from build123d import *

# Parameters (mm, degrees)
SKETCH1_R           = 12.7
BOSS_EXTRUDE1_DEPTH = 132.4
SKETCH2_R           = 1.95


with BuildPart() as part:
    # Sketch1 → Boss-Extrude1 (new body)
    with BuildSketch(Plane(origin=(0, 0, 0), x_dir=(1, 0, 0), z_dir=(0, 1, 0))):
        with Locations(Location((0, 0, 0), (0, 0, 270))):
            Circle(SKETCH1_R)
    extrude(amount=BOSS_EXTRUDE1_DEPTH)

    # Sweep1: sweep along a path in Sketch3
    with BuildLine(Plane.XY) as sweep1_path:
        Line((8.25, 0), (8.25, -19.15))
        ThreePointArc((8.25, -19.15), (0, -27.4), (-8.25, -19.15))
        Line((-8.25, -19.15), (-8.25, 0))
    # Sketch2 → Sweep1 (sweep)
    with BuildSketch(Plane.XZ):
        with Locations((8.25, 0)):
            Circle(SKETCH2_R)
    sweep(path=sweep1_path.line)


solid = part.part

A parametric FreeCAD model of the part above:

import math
import FreeCAD as App
import Part
import Sketcher

V = App.Vector
Q = App.Units.Quantity

doc = App.newDocument("Part")
body = doc.addObject("PartDesign::Body", "Body")

# Sketch on XZ plane
sketch1 = body.newObject("Sketcher::SketchObject", "Sketch")
sketch1.AttachmentSupport = (doc.getObject("XZ_Plane"), [""])
sketch1.MapMode = "FlatFace"
sketch1.addGeometry(Part.Circle(V(0, 0, 0), V(0, 0, 1), 12.7), False)
sketch1.addConstraint(Sketcher.Constraint("Coincident", 0, 3, -1, 1))
sketch1.addConstraint(Sketcher.Constraint("Diameter", 0, Q("25.4 mm")))
pad1 = body.newObject("PartDesign::Pad", "Pad")
pad1.Profile = sketch1
pad1.Length = 132.4
pad1.Reversed = True

# Sketch on XZ plane
sketch2 = body.newObject("Sketcher::SketchObject", "Sketch001")
sketch2.AttachmentSupport = (doc.getObject("XZ_Plane"), [""])
sketch2.MapMode = "FlatFace"
sketch2.addGeometry(Part.Circle(V(8.25, 0, 0), V(0, 0, 1), 1.95), False)
sketch2.addConstraint(Sketcher.Constraint("PointOnObject", 0, 3, -1))
sketch2.addConstraint(Sketcher.Constraint("Diameter", 0, Q("3.9 mm")))
sketch2.addConstraint(Sketcher.Constraint("DistanceX", -1, 1, 0, 3, Q("8.25 mm")))

# Sketch on XY plane
sketch3 = body.newObject("Sketcher::SketchObject", "Sketch002")
sketch3.AttachmentSupport = (doc.getObject("XY_Plane"), [""])
sketch3.MapMode = "FlatFace"
sketch3.addGeometry(Part.LineSegment(V(8.25, 0, 0), V(8.25, -19.15, 0)), False)
sketch3.addGeometry(Part.ArcOfCircle(Part.Circle(V(0, -19.15, 0), V(0, 0, 1), 8.25), math.radians(180), math.radians(360)), False)
sketch3.addGeometry(Part.LineSegment(V(-8.25, -19.15, 0), V(-8.25, 0, 0)), False)
sketch3.addConstraint(Sketcher.Constraint("Tangent", 0, 2, 1, 2))
sketch3.addConstraint(Sketcher.Constraint("Tangent", 1, 1, 2, 1))
sketch3.addConstraint(Sketcher.Constraint("Vertical", 0))
sketch3.addConstraint(Sketcher.Constraint("Vertical", 2))
sketch3.addConstraint(Sketcher.Constraint("Symmetric", 0, 1, 2, 2, -1, 1))
sketch3.addConstraint(Sketcher.Constraint("PointOnObject", 0, 1, -1))
sketch3.addConstraint(Sketcher.Constraint("Radius", 1, Q("8.25 mm")))
sketch3.addConstraint(Sketcher.Constraint("DistanceY", 0, 2, 0, 1, Q("19.15 mm")))
doc.recompute()

additivepipe = body.newObject("PartDesign::AdditivePipe", "AdditivePipe")
additivepipe.Profile = sketch2
additivepipe.Spine = (sketch3, ["Edge1", "Edge2", "Edge3"])

doc.recompute()
